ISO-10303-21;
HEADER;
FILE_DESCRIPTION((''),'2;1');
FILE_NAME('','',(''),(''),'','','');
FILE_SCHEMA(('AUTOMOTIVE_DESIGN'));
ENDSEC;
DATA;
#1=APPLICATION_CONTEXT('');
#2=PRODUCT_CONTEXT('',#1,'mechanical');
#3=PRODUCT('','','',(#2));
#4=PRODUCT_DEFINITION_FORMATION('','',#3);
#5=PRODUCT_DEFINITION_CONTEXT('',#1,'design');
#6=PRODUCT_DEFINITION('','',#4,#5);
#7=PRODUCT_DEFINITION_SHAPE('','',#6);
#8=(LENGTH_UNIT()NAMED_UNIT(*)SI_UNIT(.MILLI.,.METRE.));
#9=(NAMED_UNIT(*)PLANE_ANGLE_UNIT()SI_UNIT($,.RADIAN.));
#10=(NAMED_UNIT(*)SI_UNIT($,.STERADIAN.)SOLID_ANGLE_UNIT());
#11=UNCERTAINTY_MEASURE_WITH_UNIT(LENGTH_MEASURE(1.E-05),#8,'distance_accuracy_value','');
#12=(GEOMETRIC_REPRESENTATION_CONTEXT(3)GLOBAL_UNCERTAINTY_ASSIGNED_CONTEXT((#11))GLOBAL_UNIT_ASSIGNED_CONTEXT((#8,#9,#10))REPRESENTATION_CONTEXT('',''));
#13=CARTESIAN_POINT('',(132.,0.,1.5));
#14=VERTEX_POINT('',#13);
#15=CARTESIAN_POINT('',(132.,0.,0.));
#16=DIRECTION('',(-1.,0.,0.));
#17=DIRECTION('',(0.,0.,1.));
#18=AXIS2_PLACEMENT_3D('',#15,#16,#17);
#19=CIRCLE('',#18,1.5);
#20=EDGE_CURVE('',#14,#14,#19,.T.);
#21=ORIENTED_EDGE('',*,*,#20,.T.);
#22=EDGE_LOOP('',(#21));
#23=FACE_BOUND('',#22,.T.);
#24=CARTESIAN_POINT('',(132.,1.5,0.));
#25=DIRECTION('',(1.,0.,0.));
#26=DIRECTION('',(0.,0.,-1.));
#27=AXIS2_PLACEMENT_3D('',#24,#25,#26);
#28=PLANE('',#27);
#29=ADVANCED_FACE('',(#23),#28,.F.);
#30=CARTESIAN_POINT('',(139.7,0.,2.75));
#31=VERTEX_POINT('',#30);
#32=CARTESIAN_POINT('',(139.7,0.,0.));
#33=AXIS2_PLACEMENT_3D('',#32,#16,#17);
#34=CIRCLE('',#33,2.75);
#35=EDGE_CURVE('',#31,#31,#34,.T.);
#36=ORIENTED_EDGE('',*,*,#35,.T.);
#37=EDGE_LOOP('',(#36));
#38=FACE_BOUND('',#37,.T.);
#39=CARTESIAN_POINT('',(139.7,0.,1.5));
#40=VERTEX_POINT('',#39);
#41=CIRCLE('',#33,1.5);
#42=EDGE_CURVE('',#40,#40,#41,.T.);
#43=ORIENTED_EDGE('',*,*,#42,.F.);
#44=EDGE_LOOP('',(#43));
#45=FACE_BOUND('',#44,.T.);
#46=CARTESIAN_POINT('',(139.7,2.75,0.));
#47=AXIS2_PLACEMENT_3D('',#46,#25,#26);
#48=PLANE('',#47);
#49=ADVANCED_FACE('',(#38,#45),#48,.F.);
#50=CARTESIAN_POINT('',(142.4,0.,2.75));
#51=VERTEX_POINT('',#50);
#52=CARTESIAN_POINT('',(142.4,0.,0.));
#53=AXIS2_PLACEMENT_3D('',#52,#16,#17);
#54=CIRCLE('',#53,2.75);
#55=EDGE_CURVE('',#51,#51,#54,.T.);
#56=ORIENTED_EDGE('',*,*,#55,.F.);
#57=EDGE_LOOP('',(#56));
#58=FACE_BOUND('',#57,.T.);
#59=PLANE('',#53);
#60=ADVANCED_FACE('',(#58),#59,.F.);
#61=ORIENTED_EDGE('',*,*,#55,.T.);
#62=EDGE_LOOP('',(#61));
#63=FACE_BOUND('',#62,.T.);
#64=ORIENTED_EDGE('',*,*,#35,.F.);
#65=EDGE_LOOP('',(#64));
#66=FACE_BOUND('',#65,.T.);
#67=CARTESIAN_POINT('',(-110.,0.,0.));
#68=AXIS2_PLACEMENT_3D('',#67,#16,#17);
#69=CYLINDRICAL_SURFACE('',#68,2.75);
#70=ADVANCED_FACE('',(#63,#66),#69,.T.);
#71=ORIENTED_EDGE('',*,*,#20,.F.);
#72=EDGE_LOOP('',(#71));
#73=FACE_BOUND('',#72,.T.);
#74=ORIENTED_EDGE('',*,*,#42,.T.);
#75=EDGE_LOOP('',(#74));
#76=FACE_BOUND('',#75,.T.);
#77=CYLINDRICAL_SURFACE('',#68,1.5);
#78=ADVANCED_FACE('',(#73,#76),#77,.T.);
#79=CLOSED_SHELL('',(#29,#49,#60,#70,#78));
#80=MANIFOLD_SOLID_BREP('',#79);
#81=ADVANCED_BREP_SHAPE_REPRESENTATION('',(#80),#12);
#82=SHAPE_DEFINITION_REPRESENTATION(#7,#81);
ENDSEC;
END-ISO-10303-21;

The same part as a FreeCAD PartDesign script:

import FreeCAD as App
import Part
import Sketcher
from FreeCAD import Vector
Q = App.Units.Quantity


def add_polygon(sketch, points):
    """Adds a closed chain of lines whose ends are joined by coincident constraints."""
    first, n = sketch.GeometryCount, len(points)
    for a, b in zip(points, points[1:] + points[:1]):
        sketch.addGeometry(Part.LineSegment(App.Vector(*a, 0), App.Vector(*b, 0)), False)
    for i in range(n):
        sketch.addConstraint(Sketcher.Constraint("Coincident", first + i, 2, first + (i + 1) % n, 1))

doc = App.newDocument("Part")
body = doc.addObject("PartDesign::Body", "Body")

# Sketch on XY plane
sketch1 = body.newObject("Sketcher::SketchObject", "Sketch")
sketch1.AttachmentSupport = (doc.getObject("XY_Plane"), [""])
sketch1.MapMode = "FlatFace"
add_polygon(sketch1, [(132, 0), (142.4, 0), (142.4, 2.8), (139.7, 2.8), (139.7, 1.5), (132, 1.5)])  # lines 0-5
sketch1.addConstraint([
    Sketcher.Constraint("Horizontal", 0),
    Sketcher.Constraint("Vertical", 1),
    Sketcher.Constraint("Horizontal", 2),
    Sketcher.Constraint("Vertical", 3),
    Sketcher.Constraint("Horizontal", 4),
    Sketcher.Constraint("Vertical", 5),
    Sketcher.Constraint("PointOnObject", 0, 2, -1),
    Sketcher.Constraint("DistanceX", 0, 1, 0, 2, Q("10.4 mm")),
    Sketcher.Constraint("DistanceX", 2, 2, 2, 1, Q("2.7 mm")),
    Sketcher.Constraint("DistanceY", 5, 2, 5, 1, Q("1.5 mm")),
    Sketcher.Constraint("DistanceX", -1, 1, 4, 2, Q("132 mm")),
    Sketcher.Constraint("DistanceY", 1, 1, 1, 2, Q("2.75 mm")),
])
revolution = body.newObject("PartDesign::Revolution", "Revolution")
revolution.Profile = sketch1
revolution.ReferenceAxis = (sketch1, ["H_Axis"])
revolution.Angle = 360

doc.recompute()
